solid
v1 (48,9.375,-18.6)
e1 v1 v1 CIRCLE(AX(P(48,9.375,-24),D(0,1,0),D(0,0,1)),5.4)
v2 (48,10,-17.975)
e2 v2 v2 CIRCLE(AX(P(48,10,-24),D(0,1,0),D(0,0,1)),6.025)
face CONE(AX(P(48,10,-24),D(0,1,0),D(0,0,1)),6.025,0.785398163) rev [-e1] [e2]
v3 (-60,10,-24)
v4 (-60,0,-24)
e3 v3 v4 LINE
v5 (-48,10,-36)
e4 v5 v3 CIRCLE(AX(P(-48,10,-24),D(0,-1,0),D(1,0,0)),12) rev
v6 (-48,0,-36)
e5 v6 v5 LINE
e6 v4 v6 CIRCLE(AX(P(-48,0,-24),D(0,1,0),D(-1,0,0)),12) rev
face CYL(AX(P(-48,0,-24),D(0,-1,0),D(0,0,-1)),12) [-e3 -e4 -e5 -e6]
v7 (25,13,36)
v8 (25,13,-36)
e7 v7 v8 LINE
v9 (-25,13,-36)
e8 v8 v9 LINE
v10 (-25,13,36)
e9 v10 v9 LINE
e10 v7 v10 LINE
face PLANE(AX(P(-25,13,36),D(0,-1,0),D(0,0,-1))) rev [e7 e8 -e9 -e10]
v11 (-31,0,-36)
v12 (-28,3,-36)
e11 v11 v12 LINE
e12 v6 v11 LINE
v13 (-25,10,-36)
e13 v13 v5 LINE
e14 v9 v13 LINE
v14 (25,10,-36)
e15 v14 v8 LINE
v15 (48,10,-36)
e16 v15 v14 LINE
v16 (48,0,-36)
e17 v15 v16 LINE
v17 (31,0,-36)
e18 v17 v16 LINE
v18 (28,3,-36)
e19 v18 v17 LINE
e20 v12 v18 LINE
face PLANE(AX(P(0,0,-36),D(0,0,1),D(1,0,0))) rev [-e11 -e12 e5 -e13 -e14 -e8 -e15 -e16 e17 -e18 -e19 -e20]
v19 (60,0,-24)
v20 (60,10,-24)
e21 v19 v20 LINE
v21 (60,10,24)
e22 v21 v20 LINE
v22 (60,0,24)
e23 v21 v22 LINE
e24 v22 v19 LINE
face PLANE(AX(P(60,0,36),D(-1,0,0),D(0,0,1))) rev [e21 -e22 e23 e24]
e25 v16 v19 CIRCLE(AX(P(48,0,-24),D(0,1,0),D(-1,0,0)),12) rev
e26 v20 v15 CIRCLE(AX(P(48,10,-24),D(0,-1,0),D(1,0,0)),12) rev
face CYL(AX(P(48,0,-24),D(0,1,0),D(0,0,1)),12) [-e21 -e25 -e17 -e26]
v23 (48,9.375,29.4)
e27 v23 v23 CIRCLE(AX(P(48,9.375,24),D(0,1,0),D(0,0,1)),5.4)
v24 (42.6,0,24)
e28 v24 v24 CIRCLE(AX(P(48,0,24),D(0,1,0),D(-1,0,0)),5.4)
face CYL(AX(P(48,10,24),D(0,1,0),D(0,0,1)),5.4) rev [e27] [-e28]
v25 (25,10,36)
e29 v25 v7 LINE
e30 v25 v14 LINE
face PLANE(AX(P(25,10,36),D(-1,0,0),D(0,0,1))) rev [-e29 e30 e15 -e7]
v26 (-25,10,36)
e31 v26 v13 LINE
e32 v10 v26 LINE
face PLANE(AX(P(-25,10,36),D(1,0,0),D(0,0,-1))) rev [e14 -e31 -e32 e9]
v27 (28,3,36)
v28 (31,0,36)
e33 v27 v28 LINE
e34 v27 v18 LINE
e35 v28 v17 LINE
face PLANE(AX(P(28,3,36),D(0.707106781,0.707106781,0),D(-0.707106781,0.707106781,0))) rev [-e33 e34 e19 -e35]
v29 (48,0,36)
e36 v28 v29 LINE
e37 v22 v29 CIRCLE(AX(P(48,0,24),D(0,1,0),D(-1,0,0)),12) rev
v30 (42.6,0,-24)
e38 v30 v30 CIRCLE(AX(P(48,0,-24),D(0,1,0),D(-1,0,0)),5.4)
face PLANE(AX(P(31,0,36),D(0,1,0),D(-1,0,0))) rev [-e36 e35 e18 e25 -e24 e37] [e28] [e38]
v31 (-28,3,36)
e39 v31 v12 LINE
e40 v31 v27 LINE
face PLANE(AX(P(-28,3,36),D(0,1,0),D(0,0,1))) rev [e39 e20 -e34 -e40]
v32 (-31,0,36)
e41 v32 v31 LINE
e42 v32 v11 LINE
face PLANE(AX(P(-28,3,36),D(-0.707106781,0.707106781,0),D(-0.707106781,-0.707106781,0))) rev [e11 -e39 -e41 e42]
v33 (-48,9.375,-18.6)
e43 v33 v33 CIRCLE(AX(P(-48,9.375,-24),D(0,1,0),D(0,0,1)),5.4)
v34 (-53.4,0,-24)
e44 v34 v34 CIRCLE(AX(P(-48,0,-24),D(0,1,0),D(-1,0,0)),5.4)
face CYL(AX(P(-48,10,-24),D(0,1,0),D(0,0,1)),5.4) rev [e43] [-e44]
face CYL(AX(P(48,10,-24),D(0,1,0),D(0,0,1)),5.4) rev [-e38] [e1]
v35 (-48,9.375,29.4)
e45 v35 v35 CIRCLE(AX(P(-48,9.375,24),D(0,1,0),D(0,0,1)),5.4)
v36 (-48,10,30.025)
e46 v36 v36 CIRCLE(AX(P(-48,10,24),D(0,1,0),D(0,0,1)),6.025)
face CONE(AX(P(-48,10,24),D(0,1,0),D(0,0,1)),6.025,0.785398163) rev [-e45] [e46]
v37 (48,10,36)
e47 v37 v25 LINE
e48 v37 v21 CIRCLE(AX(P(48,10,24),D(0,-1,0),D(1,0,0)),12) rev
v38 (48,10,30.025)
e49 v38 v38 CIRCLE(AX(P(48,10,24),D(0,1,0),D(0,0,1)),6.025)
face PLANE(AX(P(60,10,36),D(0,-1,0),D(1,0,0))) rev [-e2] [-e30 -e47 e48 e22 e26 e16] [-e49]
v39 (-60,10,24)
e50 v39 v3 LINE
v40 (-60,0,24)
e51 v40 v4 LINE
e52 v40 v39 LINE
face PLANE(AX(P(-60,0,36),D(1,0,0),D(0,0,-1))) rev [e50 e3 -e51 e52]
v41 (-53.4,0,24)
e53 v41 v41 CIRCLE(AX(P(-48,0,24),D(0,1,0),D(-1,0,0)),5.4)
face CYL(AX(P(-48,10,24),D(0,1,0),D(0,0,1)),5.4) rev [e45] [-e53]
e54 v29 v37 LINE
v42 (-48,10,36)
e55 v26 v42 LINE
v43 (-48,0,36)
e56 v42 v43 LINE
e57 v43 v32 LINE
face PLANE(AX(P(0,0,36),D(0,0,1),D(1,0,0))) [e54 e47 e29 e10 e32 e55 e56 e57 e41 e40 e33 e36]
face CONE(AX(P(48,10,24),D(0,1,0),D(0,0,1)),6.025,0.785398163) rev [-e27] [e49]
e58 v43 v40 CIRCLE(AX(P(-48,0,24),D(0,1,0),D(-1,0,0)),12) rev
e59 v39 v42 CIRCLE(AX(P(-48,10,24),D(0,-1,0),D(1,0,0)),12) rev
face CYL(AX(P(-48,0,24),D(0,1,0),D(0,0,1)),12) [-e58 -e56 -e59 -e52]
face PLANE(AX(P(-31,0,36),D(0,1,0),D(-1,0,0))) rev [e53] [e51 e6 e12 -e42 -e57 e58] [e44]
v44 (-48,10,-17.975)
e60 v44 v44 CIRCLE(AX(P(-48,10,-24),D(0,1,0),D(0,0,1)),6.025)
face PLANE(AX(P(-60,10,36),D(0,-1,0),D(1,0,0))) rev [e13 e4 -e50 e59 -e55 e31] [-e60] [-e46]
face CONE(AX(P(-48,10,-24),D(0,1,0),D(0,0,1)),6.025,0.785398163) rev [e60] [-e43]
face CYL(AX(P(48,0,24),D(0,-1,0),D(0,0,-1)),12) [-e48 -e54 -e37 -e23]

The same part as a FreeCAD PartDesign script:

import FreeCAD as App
import Part
import Sketcher

V = App.Vector
Q = App.Units.Quantity


def edges_at(feature, points):
    """Names of the edges that pass closest to the given points."""
    edges = feature.Shape.Edges
    near = lambda p: min(range(len(edges)), key=lambda i: edges[i].distToShape(Part.Vertex(*p))[0])
    return sorted({f"Edge{near(p) + 1}" for p in points})


def add_polygon(sketch, points):
    """Adds a closed chain of lines whose ends are joined by coincident constraints."""
    first, n = sketch.GeometryCount, len(points)
    for a, b in zip(points, points[1:] + points[:1]):
        sketch.addGeometry(Part.LineSegment(App.Vector(*a, 0), App.Vector(*b, 0)), False)
    for i in range(n):
        sketch.addConstraint(Sketcher.Constraint("Coincident", first + i, 2, first + (i + 1) % n, 1))

doc = App.newDocument("Part")
params = doc.addObject("Spreadsheet::Sheet", "Params")
for row, (alias, value) in enumerate([
    ("sketch1_width", "56 mm"),
    ("sketch1_width2", "29 mm"),
    ("sketch1_width3", "35 mm"),
    ("sketch1_width4", "50 mm"),
    ("sketch1_height", "10 mm"),
    ("pad1_length", "72 mm"),
    ("fillet_radius", "12 mm"),
    ("sketch2_diameter", "10.8 mm"),
    ("hole_diameter", "10.8 mm"),
    ("hole_depth", "24.505353 mm"),
    ("hole_csink_diameter", "12.05 mm"),
], start=1):
    params.set(f"A{row}", alias)
    params.set(f"B{row}", "=" + value)
    params.setAlias(f"B{row}", alias)

body = doc.addObject("PartDesign::Body", "Body")

# Sketch on XY plane
sketch1 = body.newObject("Sketcher::SketchObject", "Sketch")
sketch1.AttachmentSupport = (doc.getObject("XY_Plane"), [""])
sketch1.MapMode = "FlatFace"
add_polygon(sketch1, [(-31, 0), (-28, 3), (28, 3), (31, 0), (60, 0), (60, 10), (25, 10), (25, 13), (-25, 13), (-25, 10), (-60, 10), (-60, 0)])  # lines 0-11
sketch1.addConstraint([
    Sketcher.Constraint("Horizontal", 1),
    Sketcher.Constraint("Horizontal", 3),
    Sketcher.Constraint("Vertical", 4),
    Sketcher.Constraint("Horizontal", 5),
    Sketcher.Constraint("Vertical", 6),
    Sketcher.Constraint("Horizontal", 7),
    Sketcher.Constraint("Vertical", 8),
    Sketcher.Constraint("Horizontal", 9),
    Sketcher.Constraint("Vertical", 10),
    Sketcher.Constraint("Horizontal", 11),
    Sketcher.Constraint("Symmetric", 3, 2, 10, 2, -1, 1),
    Sketcher.Constraint("Symmetric", 5, 2, 8, 2, -2),
    Sketcher.Constraint("Symmetric", 2, 2, 11, 2, -2),
    Sketcher.Constraint("Perpendicular", 0, 2),
    Sketcher.Constraint("Equal", 0, 2),
    Sketcher.Constraint("DistanceX", 1, 1, 1, 2, Q("56 mm")),
    Sketcher.Constraint("DistanceX", 3, 1, 3, 2, Q("29 mm")),
    Sketcher.Constraint("DistanceX", 5, 2, 5, 1, Q("35 mm")),
    Sketcher.Constraint("DistanceX", 7, 2, 7, 1, Q("50 mm")),
    Sketcher.Constraint("DistanceY", 4, 1, 4, 2, Q("10 mm")),
    Sketcher.Constraint("DistanceY", 6, 1, 6, 2, Q("3 mm")),
])
sketch1.setExpression("Constraints[27]", "Params.sketch1_width")
sketch1.setExpression("Constraints[28]", "Params.sketch1_width2")
sketch1.setExpression("Constraints[29]", "Params.sketch1_width3")
sketch1.setExpression("Constraints[30]", "Params.sketch1_width4")
sketch1.setExpression("Constraints[31]", "Params.sketch1_height")
pad1 = body.newObject("PartDesign::Pad", "Pad")
pad1.Profile = sketch1
pad1.setExpression("Length", "Params.pad1_length")
pad1.Midplane = True
doc.recompute()

fillet = body.newObject("PartDesign::Fillet", "Fillet")
fillet.Base = (pad1, edges_at(pad1, [
    (-60, 5, -36),
    (60, 5, -36),
    (60, 5, 36),
    (-60, 5, 36),
]))
fillet.setExpression("Radius", "Params.fillet_radius")

# Sketch on XZ plane
sketch2 = body.newObject("Sketcher::SketchObject", "Sketch001")
sketch2.AttachmentSupport = (doc.getObject("XZ_Plane"), [""])
sketch2.MapMode = "FlatFace"
sketch2.AttachmentOffset = App.Placement(V(0, 0, -10), App.Rotation())
sketch2.addGeometry([
    Part.Circle(V(-48, -24, 0), V(0, 0, 1), 5),
    Part.Circle(V(-48, 24, 0), V(0, 0, 1), 5),
    Part.Circle(V(48, 24, 0), V(0, 0, 1), 5),
    Part.Circle(V(48, -24, 0), V(0, 0, 1), 5),
], False)
sketch2.addConstraint([
    Sketcher.Constraint("Equal", 0, 1),
    Sketcher.Constraint("Equal", 1, 2),
    Sketcher.Constraint("Equal", 2, 3),
    Sketcher.Constraint("Symmetric", 0, 3, 2, 3, -1, 1),
    Sketcher.Constraint("Symmetric", 1, 3, 3, 3, -1, 1),
    Sketcher.Constraint("Symmetric", 1, 3, 2, 3, -2),
    Sketcher.Constraint("Diameter", 0, Q("10.8 mm")),
    Sketcher.Constraint("DistanceX", 0, 3, -1, 1, Q("48 mm")),
    Sketcher.Constraint("DistanceY", 0, 3, -1, 1, Q("24 mm")),
])
sketch2.setExpression("Constraints[6]", "Params.sketch2_diameter")
doc.recompute()
hole = body.newObject("PartDesign::Hole", "Hole")
hole.Profile = sketch2
hole.ThreadType = "None"
hole.setExpression("Diameter", "Params.hole_diameter")
hole.DepthType = "Dimension"
hole.setExpression("Depth", "Params.hole_depth")
hole.DrillPoint = "Angled"
hole.DrillPointAngle = 118
hole.HoleCutType = "Countersink"
hole.setExpression("HoleCutDiameter", "Params.hole_csink_diameter")
hole.HoleCutCountersinkAngle = 90
hole.Reversed = True

doc.recompute()
